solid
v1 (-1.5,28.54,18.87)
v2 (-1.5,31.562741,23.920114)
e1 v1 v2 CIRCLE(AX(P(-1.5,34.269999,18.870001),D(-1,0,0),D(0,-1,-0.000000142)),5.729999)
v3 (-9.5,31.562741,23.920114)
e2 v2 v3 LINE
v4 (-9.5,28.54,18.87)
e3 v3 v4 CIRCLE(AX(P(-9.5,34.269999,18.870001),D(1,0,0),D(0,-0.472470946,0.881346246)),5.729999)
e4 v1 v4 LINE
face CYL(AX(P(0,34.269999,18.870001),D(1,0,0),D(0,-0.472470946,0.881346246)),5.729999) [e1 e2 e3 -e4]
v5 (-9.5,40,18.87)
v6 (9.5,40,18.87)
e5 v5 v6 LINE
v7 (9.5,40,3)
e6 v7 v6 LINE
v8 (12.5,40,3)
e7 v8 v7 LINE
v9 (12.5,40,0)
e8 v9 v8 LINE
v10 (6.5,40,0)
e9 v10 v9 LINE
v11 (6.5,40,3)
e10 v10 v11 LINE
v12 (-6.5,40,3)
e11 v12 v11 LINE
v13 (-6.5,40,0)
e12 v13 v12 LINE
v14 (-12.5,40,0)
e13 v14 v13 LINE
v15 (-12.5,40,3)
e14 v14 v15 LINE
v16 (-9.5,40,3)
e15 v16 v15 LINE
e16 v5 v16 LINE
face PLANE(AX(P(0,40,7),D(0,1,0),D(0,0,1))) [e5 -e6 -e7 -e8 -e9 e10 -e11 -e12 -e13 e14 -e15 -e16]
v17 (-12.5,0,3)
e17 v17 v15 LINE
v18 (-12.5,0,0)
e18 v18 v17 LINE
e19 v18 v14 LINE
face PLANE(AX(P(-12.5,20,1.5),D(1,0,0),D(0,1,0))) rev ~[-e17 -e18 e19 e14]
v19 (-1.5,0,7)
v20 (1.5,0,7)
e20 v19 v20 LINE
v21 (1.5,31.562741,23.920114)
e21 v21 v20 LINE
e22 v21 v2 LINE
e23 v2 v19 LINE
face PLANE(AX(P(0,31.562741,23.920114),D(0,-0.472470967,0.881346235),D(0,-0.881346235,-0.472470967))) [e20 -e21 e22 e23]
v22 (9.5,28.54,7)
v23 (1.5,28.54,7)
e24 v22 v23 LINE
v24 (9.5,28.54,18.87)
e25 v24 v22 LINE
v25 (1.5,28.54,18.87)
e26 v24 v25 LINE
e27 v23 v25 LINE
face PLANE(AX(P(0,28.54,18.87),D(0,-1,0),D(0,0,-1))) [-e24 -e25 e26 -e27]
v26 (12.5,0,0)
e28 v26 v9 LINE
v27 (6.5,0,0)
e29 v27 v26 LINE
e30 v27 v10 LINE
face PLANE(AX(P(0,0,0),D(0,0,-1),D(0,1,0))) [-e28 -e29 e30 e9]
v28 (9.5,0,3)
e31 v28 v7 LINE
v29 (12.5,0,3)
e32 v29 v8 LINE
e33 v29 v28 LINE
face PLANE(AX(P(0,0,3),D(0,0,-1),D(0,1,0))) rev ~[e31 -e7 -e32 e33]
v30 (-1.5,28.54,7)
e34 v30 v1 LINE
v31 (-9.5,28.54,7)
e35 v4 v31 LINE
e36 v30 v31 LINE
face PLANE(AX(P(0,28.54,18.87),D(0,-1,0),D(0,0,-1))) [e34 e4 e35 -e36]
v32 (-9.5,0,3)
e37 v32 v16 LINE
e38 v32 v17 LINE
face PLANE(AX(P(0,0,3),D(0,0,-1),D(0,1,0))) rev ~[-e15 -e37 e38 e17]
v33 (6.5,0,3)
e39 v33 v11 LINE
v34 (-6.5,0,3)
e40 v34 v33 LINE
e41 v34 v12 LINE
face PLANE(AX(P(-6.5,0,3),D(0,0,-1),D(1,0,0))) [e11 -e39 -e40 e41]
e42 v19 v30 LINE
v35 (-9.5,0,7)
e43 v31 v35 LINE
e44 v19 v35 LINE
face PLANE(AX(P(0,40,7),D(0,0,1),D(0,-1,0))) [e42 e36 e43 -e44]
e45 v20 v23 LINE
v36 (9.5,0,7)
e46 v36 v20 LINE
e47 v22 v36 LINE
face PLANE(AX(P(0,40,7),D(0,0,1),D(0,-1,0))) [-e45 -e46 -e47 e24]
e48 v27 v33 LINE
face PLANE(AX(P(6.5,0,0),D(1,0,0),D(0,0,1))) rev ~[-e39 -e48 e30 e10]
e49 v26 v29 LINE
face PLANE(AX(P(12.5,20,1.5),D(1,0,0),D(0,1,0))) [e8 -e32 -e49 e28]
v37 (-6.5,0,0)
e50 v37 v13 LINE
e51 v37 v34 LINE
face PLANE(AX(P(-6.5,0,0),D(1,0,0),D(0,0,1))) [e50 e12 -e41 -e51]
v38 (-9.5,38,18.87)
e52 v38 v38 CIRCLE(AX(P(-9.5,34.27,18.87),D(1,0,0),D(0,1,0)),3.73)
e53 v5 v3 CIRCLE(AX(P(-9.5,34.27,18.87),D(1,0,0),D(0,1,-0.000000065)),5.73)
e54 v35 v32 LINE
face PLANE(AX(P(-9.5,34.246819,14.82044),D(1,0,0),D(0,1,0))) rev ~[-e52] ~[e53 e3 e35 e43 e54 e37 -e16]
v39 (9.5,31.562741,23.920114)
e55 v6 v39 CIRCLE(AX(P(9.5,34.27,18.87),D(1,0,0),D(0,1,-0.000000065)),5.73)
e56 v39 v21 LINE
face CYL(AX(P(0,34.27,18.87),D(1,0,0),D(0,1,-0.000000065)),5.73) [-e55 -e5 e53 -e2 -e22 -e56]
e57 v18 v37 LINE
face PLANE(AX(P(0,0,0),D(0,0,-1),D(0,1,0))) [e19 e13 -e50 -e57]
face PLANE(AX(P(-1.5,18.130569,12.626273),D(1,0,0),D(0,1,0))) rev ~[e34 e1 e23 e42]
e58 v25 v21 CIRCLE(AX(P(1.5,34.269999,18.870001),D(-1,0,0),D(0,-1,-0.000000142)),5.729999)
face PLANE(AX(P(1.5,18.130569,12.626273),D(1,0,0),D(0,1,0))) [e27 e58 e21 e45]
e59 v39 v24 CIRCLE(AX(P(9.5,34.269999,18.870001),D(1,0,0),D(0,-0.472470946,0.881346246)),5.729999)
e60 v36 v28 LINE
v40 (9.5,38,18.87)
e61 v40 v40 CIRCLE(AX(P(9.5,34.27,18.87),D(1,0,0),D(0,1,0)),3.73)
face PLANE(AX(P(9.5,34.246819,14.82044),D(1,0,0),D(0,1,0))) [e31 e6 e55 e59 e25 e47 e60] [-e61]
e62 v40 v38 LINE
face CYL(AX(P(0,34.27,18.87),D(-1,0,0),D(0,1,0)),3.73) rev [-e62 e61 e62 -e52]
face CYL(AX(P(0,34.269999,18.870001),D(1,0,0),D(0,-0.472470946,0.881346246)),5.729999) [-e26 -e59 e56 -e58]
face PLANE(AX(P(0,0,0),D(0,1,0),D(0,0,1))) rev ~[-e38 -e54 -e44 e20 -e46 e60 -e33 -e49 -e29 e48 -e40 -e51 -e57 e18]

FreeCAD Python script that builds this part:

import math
import FreeCAD as App
import Part
import Sketcher
from FreeCAD import Vector


def add_polygon(sketch, points):
    """Adds a closed chain of lines whose ends are joined by coincident constraints."""
    first, n = sketch.GeometryCount, len(points)
    for a, b in zip(points, points[1:] + points[:1]):
        sketch.addGeometry(Part.LineSegment(App.Vector(*a, 0), App.Vector(*b, 0)), False)
    for i in range(n):
        sketch.addConstraint(Sketcher.Constraint("Coincident", first + i, 2, first + (i + 1) % n, 1))

doc = App.newDocument("Part")
body = doc.addObject("PartDesign::Body", "Body")

sketch1 = doc.addObject("Sketcher::SketchObject", "Sketch")
body.addObject(sketch1)
sketch1.AttachmentSupport = (doc.YZ_Plane, [""])
sketch1.MapMode = "FlatFace"
add_polygon(sketch1, [(0, 3), (0, 0), (40, 0), (40, 3)])
sketch1.addConstraint(Sketcher.Constraint("Vertical", 0))
sketch1.addConstraint(Sketcher.Constraint("Horizontal", 1))
sketch1.addConstraint(Sketcher.Constraint("Vertical", 2))
sketch1.addConstraint(Sketcher.Constraint("Horizontal", 3))
sketch1.addConstraint(Sketcher.Constraint("Coincident", 0, 2, -1, 1))
sketch1.addConstraint(Sketcher.Constraint("DistanceX", 1, 1, 1, 2, 40.0))
sketch1.addConstraint(Sketcher.Constraint("DistanceY", 0, 2, 0, 1, 3.0))
pad1 = doc.addObject("PartDesign::Pad", "Pad")
body.addObject(pad1)
pad1.Profile = sketch1
pad1.Length = 25
pad1.Midplane = True

sketch2 = doc.addObject("Sketcher::SketchObject", "Sketch001")
body.addObject(sketch2)
sketch2.AttachmentSupport = (doc.YZ_Plane, [""])
sketch2.MapMode = "FlatFace"
add_polygon(sketch2, [(0, 7), (0, 3), (40, 3), (40, 7)])
sketch2.addConstraint(Sketcher.Constraint("Vertical", 0))
sketch2.addConstraint(Sketcher.Constraint("Horizontal", 1))
sketch2.addConstraint(Sketcher.Constraint("Vertical", 2))
sketch2.addConstraint(Sketcher.Constraint("Horizontal", 3))
sketch2.addConstraint(Sketcher.Constraint("PointOnObject", 0, 2, -2))
sketch2.addConstraint(Sketcher.Constraint("DistanceX", 1, 1, 1, 2, 40.0))
sketch2.addConstraint(Sketcher.Constraint("DistanceY", 0, 2, 0, 1, 4.0))
sketch2.addConstraint(Sketcher.Constraint("DistanceY", -1, 1, 0, 2, 3.0))
pad2 = doc.addObject("PartDesign::Pad", "Pad001")
body.addObject(pad2)
pad2.Profile = sketch2
pad2.Length = 19
pad2.Midplane = True

sketch3 = doc.addObject("Sketcher::SketchObject", "Sketch002")
body.addObject(sketch3)
sketch3.AttachmentSupport = (doc.YZ_Plane, [""])
sketch3.MapMode = "FlatFace"
sketch3.addGeometry(Part.LineSegment(Vector(28.5, 7, 0), Vector(40, 7, 0)), False)
sketch3.addGeometry(Part.LineSegment(Vector(40, 7, 0), Vector(40, 18.9, 0)), False)
sketch3.addGeometry(Part.ArcOfCircle(Part.Circle(Vector(34.3, 18.9, 0), Vector(0, 0, 1), 5.7), math.radians(0), math.radians(118)), False)
sketch3.addGeometry(Part.ArcOfCircle(Part.Circle(Vector(34.3, 18.9, 0), Vector(0, 0, 1), 5.7), math.radians(118), math.radians(180)), False)
sketch3.addGeometry(Part.LineSegment(Vector(28.5, 18.9, 0), Vector(28.5, 7, 0)), False)
sketch3.addGeometry(Part.Circle(Vector(34.3, 18.9, 0), Vector(0, 0, 1), 3.7), False)
sketch3.addConstraint(Sketcher.Constraint("Coincident", 0, 2, 1, 1))
sketch3.addConstraint(Sketcher.Constraint("Tangent", 1, 2, 2, 1))
sketch3.addConstraint(Sketcher.Constraint("Tangent", 2, 2, 3, 1))
sketch3.addConstraint(Sketcher.Constraint("Tangent", 3, 2, 4, 1))
sketch3.addConstraint(Sketcher.Constraint("Coincident", 4, 2, 0, 1))
sketch3.addConstraint(Sketcher.Constraint("Horizontal", 0))
sketch3.addConstraint(Sketcher.Constraint("Vertical", 1))
sketch3.addConstraint(Sketcher.Constraint("Vertical", 4))
sketch3.addConstraint(Sketcher.Constraint("Coincident", 5, 3, 2, 3))
sketch3.addConstraint(Sketcher.Constraint("Equal", 2, 3))
sketch3.addConstraint(Sketcher.Constraint("Diameter", 5, 7.46))
sketch3.addConstraint(Sketcher.Constraint("Radius", 2, 5.73))
sketch3.addConstraint(Sketcher.Constraint("DistanceX", -1, 1, 0, 2, 40.0))
sketch3.addConstraint(Sketcher.Constraint("DistanceY", -1, 1, 0, 2, 7.0))
sketch3.addConstraint(Sketcher.Constraint("DistanceY", 1, 1, 1, 2, 11.87))
sketch3.addConstraint(Sketcher.Constraint("DistanceX", -1, 1, 2, 2, 31.562741))
pad3 = doc.addObject("PartDesign::Pad", "Pad002")
body.addObject(pad3)
pad3.Profile = sketch3
pad3.Length = 19
pad3.Midplane = True

sketch4 = doc.addObject("Sketcher::SketchObject", "Sketch003")
body.addObject(sketch4)
sketch4.AttachmentSupport = (doc.YZ_Plane, [""])
sketch4.MapMode = "FlatFace"
sketch4.addGeometry(Part.LineSegment(Vector(32, 24, 0), Vector(0, 7, 0)), False)
sketch4.addGeometry(Part.LineSegment(Vector(0, 7, 0), Vector(29, 7, 0)), False)
sketch4.addGeometry(Part.LineSegment(Vector(29, 7, 0), Vector(29, 19, 0)), False)
sketch4.addGeometry(Part.ArcOfCircle(Part.Circle(Vector(34, 19, 0), Vector(0, 0, 1), 6), math.radians(118), math.radians(180)), False)
sketch4.addConstraint(Sketcher.Constraint("Coincident", 0, 2, 1, 1))
sketch4.addConstraint(Sketcher.Constraint("Coincident", 1, 2, 2, 1))
sketch4.addConstraint(Sketcher.Constraint("Tangent", 2, 2, 3, 2))
sketch4.addConstraint(Sketcher.Constraint("Tangent", 3, 1, 0, 1))
sketch4.addConstraint(Sketcher.Constraint("Horizontal", 1))
sketch4.addConstraint(Sketcher.Constraint("Vertical", 2))
sketch4.addConstraint(Sketcher.Constraint("PointOnObject", 0, 2, -2))
sketch4.addConstraint(Sketcher.Constraint("Radius", 3, 5.729999))
sketch4.addConstraint(Sketcher.Constraint("DistanceY", -1, 1, 0, 2, 7.0))
sketch4.addConstraint(Sketcher.Constraint("DistanceX", 1, 1, 1, 2, 28.54))
sketch4.addConstraint(Sketcher.Constraint("DistanceY", 2, 1, 2, 2, 11.87))
pad4 = doc.addObject("PartDesign::Pad", "Pad003")
body.addObject(pad4)
pad4.Profile = sketch4
pad4.Length = 3
pad4.Midplane = True

sketch5 = doc.addObject("Sketcher::SketchObject", "Sketch004")
body.addObject(sketch5)
sketch5.AttachmentSupport = (doc.XZ_Plane, [""])
sketch5.MapMode = "FlatFace"
add_polygon(sketch5, [(-6.5, 3), (-6.5, 0), (6.5, 0), (6.5, 3)])
sketch5.addConstraint(Sketcher.Constraint("Vertical", 0))
sketch5.addConstraint(Sketcher.Constraint("Horizontal", 1))
sketch5.addConstraint(Sketcher.Constraint("Vertical", 2))
sketch5.addConstraint(Sketcher.Constraint("Horizontal", 3))
sketch5.addConstraint(Sketcher.Constraint("Symmetric", 0, 2, 1, 2, -1, 1))
sketch5.addConstraint(Sketcher.Constraint("DistanceX", 1, 1, 1, 2, 13.0))
sketch5.addConstraint(Sketcher.Constraint("DistanceY", 0, 2, 0, 1, 3.0))
pocket1 = doc.addObject("PartDesign::Pocket", "Pocket")
body.addObject(pocket1)
pocket1.Profile = sketch5
pocket1.Type = "ThroughAll"

doc.recompute()
